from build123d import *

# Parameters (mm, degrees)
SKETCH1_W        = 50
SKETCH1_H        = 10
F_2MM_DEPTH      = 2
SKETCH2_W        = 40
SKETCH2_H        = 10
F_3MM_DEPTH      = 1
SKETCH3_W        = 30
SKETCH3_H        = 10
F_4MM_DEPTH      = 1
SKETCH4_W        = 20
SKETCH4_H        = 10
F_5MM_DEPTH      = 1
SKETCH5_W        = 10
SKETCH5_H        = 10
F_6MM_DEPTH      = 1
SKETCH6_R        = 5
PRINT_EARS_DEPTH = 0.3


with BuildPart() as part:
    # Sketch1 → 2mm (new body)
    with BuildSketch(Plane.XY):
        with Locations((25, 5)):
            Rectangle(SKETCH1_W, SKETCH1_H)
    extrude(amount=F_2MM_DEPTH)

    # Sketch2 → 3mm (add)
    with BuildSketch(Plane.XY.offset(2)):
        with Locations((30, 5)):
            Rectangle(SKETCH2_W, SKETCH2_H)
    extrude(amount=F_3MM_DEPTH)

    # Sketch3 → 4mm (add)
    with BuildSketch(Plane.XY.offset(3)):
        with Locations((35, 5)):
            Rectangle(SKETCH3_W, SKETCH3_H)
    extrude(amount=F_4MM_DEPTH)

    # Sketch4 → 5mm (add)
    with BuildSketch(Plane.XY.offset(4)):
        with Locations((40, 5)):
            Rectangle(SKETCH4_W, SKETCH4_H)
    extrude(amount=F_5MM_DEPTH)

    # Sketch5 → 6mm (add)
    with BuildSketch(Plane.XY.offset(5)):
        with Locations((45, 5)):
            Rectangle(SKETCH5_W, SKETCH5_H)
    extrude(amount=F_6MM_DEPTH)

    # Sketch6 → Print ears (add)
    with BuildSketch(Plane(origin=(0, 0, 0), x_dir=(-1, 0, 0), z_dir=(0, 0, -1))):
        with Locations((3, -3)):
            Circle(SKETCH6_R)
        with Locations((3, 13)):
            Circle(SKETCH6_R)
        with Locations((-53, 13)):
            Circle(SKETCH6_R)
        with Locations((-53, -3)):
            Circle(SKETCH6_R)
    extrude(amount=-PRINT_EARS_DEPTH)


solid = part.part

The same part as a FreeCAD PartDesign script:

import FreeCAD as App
import Part
import Sketcher

V = App.Vector

doc = App.newDocument("Part")
params = doc.addObject("Spreadsheet::Sheet", "Params")
for row, (alias, value) in enumerate([
    ("sketch1_width", "50 mm"),
    ("sketch1_height", "10 mm"),
    ("pad1_length", "2 mm"),
    ("sketch2_width", "40 mm"),
    ("sketch2_height", "10 mm"),
    ("pad2_length", "1 mm"),
    ("sketch3_width", "30 mm"),
    ("sketch3_height", "10 mm"),
    ("pad3_length", "1 mm"),
    ("sketch4_width", "20 mm"),
    ("sketch4_height", "10 mm"),
    ("pad4_length", "1 mm"),
    ("sketch5_width", "10 mm"),
    ("pad5_length", "1 mm"),
    ("sketch6_diameter", "10 mm"),
    ("pad6_length", "0.3 mm"),
], start=1):
    params.set(f"A{row}", alias)
    params.set(f"B{row}", "=" + value)
    params.setAlias(f"B{row}", alias)

body = doc.addObject("PartDesign::Body", "Body")

sketch1 = doc.addObject("Sketcher::SketchObject", "Sketch")
body.addObject(sketch1)
sketch1.AttachmentSupport = (doc.XY_Plane, [""])
sketch1.MapMode = "FlatFace"
sketch1.addGeometry([
    Part.LineSegment(V(0, 10, 0), V(0, 0, 0)),
    Part.LineSegment(V(0, 0, 0), V(50, 0, 0)),
    Part.LineSegment(V(50, 0, 0), V(50, 10, 0)),
    Part.LineSegment(V(50, 10, 0), V(0, 10, 0)),
], False)
sketch1.addConstraint([
    Sketcher.Constraint("Coincident", 0, 2, 1, 1),
    Sketcher.Constraint("Coincident", 1, 2, 2, 1),
    Sketcher.Constraint("Coincident", 2, 2, 3, 1),
    Sketcher.Constraint("Coincident", 3, 2, 0, 1),
    Sketcher.Constraint("Vertical", 0),
    Sketcher.Constraint("Horizontal", 1),
    Sketcher.Constraint("Vertical", 2),
    Sketcher.Constraint("Horizontal", 3),
    Sketcher.Constraint("Coincident", 0, 2, -1, 1),
    Sketcher.Constraint("DistanceX", 1, 1, 1, 2, 50.0),
    Sketcher.Constraint("DistanceY", 0, 2, 0, 1, 10.0),
])
sketch1.setExpression("Constraints[9]", "Params.sketch1_width")
sketch1.setExpression("Constraints[10]", "Params.sketch1_height")
pad1 = doc.addObject("PartDesign::Pad", "Pad")
body.addObject(pad1)
pad1.Profile = sketch1
pad1.setExpression("Length", "Params.pad1_length")

sketch2 = doc.addObject("Sketcher::SketchObject", "Sketch001")
body.addObject(sketch2)
sketch2.AttachmentSupport = (doc.XY_Plane, [""])
sketch2.MapMode = "FlatFace"
sketch2.AttachmentOffset = App.Placement(V(0, 0, 2), App.Rotation())
sketch2.addGeometry([
    Part.LineSegment(V(10, 10, 0), V(10, 0, 0)),
    Part.LineSegment(V(10, 0, 0), V(50, 0, 0)),
    Part.LineSegment(V(50, 0, 0), V(50, 10, 0)),
    Part.LineSegment(V(50, 10, 0), V(10, 10, 0)),
], False)
sketch2.addConstraint([
    Sketcher.Constraint("Coincident", 0, 2, 1, 1),
    Sketcher.Constraint("Coincident", 1, 2, 2, 1),
    Sketcher.Constraint("Coincident", 2, 2, 3, 1),
    Sketcher.Constraint("Coincident", 3, 2, 0, 1),
    Sketcher.Constraint("Vertical", 0),
    Sketcher.Constraint("Horizontal", 1),
    Sketcher.Constraint("Vertical", 2),
    Sketcher.Constraint("Horizontal", 3),
    Sketcher.Constraint("PointOnObject", 0, 2, -1),
    Sketcher.Constraint("DistanceX", 1, 1, 1, 2, 40.0),
    Sketcher.Constraint("DistanceY", 0, 2, 0, 1, 10.0),
    Sketcher.Constraint("DistanceX", -1, 1, 0, 2, 10.0),
])
sketch2.setExpression("Constraints[9]", "Params.sketch2_width")
sketch2.setExpression("Constraints[10]", "Params.sketch2_height")
pad2 = doc.addObject("PartDesign::Pad", "Pad001")
body.addObject(pad2)
pad2.Profile = sketch2
pad2.setExpression("Length", "Params.pad2_length")

sketch3 = doc.addObject("Sketcher::SketchObject", "Sketch002")
body.addObject(sketch3)
sketch3.AttachmentSupport = (doc.XY_Plane, [""])
sketch3.MapMode = "FlatFace"
sketch3.AttachmentOffset = App.Placement(V(0, 0, 3), App.Rotation())
sketch3.addGeometry([
    Part.LineSegment(V(20, 10, 0), V(20, 0, 0)),
    Part.LineSegment(V(20, 0, 0), V(50, 0, 0)),
    Part.LineSegment(V(50, 0, 0), V(50, 10, 0)),
    Part.LineSegment(V(50, 10, 0), V(20, 10, 0)),
], False)
sketch3.addConstraint([
    Sketcher.Constraint("Coincident", 0, 2, 1, 1),
    Sketcher.Constraint("Coincident", 1, 2, 2, 1),
    Sketcher.Constraint("Coincident", 2, 2, 3, 1),
    Sketcher.Constraint("Coincident", 3, 2, 0, 1),
    Sketcher.Constraint("Vertical", 0),
    Sketcher.Constraint("Horizontal", 1),
    Sketcher.Constraint("Vertical", 2),
    Sketcher.Constraint("Horizontal", 3),
    Sketcher.Constraint("PointOnObject", 0, 2, -1),
    Sketcher.Constraint("DistanceX", 1, 1, 1, 2, 30.0),
    Sketcher.Constraint("DistanceY", 0, 2, 0, 1, 10.0),
    Sketcher.Constraint("DistanceX", -1, 1, 0, 2, 20.0),
])
sketch3.setExpression("Constraints[9]", "Params.sketch3_width")
sketch3.setExpression("Constraints[10]", "Params.sketch3_height")
pad3 = doc.addObject("PartDesign::Pad", "Pad002")
body.addObject(pad3)
pad3.Profile = sketch3
pad3.setExpression("Length", "Params.pad3_length")

sketch4 = doc.addObject("Sketcher::SketchObject", "Sketch003")
body.addObject(sketch4)
sketch4.AttachmentSupport = (doc.XY_Plane, [""])
sketch4.MapMode = "FlatFace"
sketch4.AttachmentOffset = App.Placement(V(0, 0, 4), App.Rotation())
sketch4.addGeometry([
    Part.LineSegment(V(30, 10, 0), V(30, 0, 0)),
    Part.LineSegment(V(30, 0, 0), V(50, 0, 0)),
    Part.LineSegment(V(50, 0, 0), V(50, 10, 0)),
    Part.LineSegment(V(50, 10, 0), V(30, 10, 0)),
], False)
sketch4.addConstraint([
    Sketcher.Constraint("Coincident", 0, 2, 1, 1),
    Sketcher.Constraint("Coincident", 1, 2, 2, 1),
    Sketcher.Constraint("Coincident", 2, 2, 3, 1),
    Sketcher.Constraint("Coincident", 3, 2, 0, 1),
    Sketcher.Constraint("Vertical", 0),
    Sketcher.Constraint("Horizontal", 1),
    Sketcher.Constraint("Vertical", 2),
    Sketcher.Constraint("Horizontal", 3),
    Sketcher.Constraint("PointOnObject", 0, 2, -1),
    Sketcher.Constraint("DistanceX", 1, 1, 1, 2, 20.0),
    Sketcher.Constraint("DistanceY", 0, 2, 0, 1, 10.0),
    Sketcher.Constraint("DistanceX", -1, 1, 0, 2, 30.0),
])
sketch4.setExpression("Constraints[9]", "Params.sketch4_width")
sketch4.setExpression("Constraints[10]", "Params.sketch4_height")
pad4 = doc.addObject("PartDesign::Pad", "Pad003")
body.addObject(pad4)
pad4.Profile = sketch4
pad4.setExpression("Length", "Params.pad4_length")

sketch5 = doc.addObject("Sketcher::SketchObject", "Sketch004")
body.addObject(sketch5)
sketch5.AttachmentSupport = (doc.XY_Plane, [""])
sketch5.MapMode = "FlatFace"
sketch5.AttachmentOffset = App.Placement(V(0, 0, 5), App.Rotation())
sketch5.addGeometry([
    Part.LineSegment(V(40, 10, 0), V(40, 0, 0)),
    Part.LineSegment(V(40, 0, 0), V(50, 0, 0)),
    Part.LineSegment(V(50, 0, 0), V(50, 10, 0)),
    Part.LineSegment(V(50, 10, 0), V(40, 10, 0)),
], False)
sketch5.addConstraint([
    Sketcher.Constraint("Coincident", 0, 2, 1, 1),
    Sketcher.Constraint("Coincident", 1, 2, 2, 1),
    Sketcher.Constraint("Coincident", 2, 2, 3, 1),
    Sketcher.Constraint("Coincident", 3, 2, 0, 1),
    Sketcher.Constraint("Vertical", 0),
    Sketcher.Constraint("Horizontal", 1),
    Sketcher.Constraint("Vertical", 2),
    Sketcher.Constraint("Horizontal", 3),
    Sketcher.Constraint("PointOnObject", 0, 2, -1),
    Sketcher.Constraint("Equal", 3, 0),
    Sketcher.Constraint("DistanceX", 1, 1, 1, 2, 10.0),
    Sketcher.Constraint("DistanceX", -1, 1, 0, 2, 40.0),
])
sketch5.setExpression("Constraints[10]", "Params.sketch5_width")
pad5 = doc.addObject("PartDesign::Pad", "Pad004")
body.addObject(pad5)
pad5.Profile = sketch5
pad5.setExpression("Length", "Params.pad5_length")

sketch6 = doc.addObject("Sketcher::SketchObject", "Sketch005")
body.addObject(sketch6)
sketch6.AttachmentSupport = (doc.XY_Plane, [""])
sketch6.MapMode = "FlatFace"
sketch6.addGeometry([
    Part.Circle(V(-3, -3, 0), V(0, 0, 1), 5),
    Part.Circle(V(-3, 13, 0), V(0, 0, 1), 5),
    Part.Circle(V(53, 13, 0), V(0, 0, 1), 5),
    Part.Circle(V(53, -3, 0), V(0, 0, 1), 5),
], False)
sketch6.addConstraint([
    Sketcher.Constraint("Equal", 0, 1),
    Sketcher.Constraint("Equal", 1, 2),
    Sketcher.Constraint("Equal", 2, 3),
    Sketcher.Constraint("Horizontal", 1, 3, 2, 3),
    Sketcher.Constraint("Horizontal", 0, 3, 3, 3),
    Sketcher.Constraint("Vertical", 0, 3, 1, 3),
    Sketcher.Constraint("Vertical", 2, 3, 3, 3),
    Sketcher.Constraint("Diameter", 0, 10.0),
    Sketcher.Constraint("DistanceX", 0, 3, -1, 1, 3.0),
    Sketcher.Constraint("DistanceY", 0, 3, -1, 1, 3.0),
    Sketcher.Constraint("DistanceY", -1, 1, 1, 3, 13.0),
    Sketcher.Constraint("DistanceX", -1, 1, 2, 3, 53.0),
])
sketch6.setExpression("Constraints[7]", "Params.sketch6_diameter")
pad6 = doc.addObject("PartDesign::Pad", "Pad005")
body.addObject(pad6)
pad6.Profile = sketch6
pad6.setExpression("Length", "Params.pad6_length")

doc.recompute()
